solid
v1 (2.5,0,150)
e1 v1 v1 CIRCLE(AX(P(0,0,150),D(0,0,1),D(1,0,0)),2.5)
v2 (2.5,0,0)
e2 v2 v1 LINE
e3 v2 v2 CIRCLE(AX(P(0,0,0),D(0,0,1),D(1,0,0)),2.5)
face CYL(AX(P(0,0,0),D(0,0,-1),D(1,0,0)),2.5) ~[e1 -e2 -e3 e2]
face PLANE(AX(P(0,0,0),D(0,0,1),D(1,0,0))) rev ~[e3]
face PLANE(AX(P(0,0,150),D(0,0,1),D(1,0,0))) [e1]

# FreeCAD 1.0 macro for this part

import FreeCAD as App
import Part
import Sketcher

V = App.Vector

doc = App.newDocument("Part")
body = doc.addObject("PartDesign::Body", "Body")

# Sketch on XY plane
sketch1 = doc.addObject("Sketcher::SketchObject", "Sketch")
body.addObject(sketch1)
sketch1.AttachmentSupport = (doc.XY_Plane, [""])
sketch1.MapMode = "FlatFace"
sketch1.addGeometry(Part.Circle(V(0, 0, 0), V(0, 0, 1), 2.5), False)
sketch1.addConstraint([
    Sketcher.Constraint("Coincident", 0, 3, -1, 1),
    Sketcher.Constraint("Diameter", 0, 5.0),
])
pad1 = doc.addObject("PartDesign::Pad", "Pad")
body.addObject(pad1)
pad1.Profile = sketch1
pad1.Length = 150

doc.recompute()
